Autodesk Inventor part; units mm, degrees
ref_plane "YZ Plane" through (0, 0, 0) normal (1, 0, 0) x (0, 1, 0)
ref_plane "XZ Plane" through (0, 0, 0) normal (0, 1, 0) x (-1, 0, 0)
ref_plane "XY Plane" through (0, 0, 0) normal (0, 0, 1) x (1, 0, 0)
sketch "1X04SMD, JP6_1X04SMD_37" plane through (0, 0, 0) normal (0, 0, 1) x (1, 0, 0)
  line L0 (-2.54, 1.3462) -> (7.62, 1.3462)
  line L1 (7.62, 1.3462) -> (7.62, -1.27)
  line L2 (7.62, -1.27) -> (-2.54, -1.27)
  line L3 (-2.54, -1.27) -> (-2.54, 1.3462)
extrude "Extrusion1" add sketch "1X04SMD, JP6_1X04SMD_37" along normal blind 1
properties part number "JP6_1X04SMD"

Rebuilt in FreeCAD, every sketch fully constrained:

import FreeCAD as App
import Part
import Sketcher
from FreeCAD import Vector
Q = App.Units.Quantity

doc = App.newDocument("Part")
params = doc.addObject("Spreadsheet::Sheet", "Params")
for row, (alias, value) in enumerate([
    ("sketch1_width", "0.4 in"),
    ("sketch1_height", "0.103 in"),
    ("pad1_length", "1 mm"),
], start=1):
    params.set(f"A{row}", alias)
    params.set(f"B{row}", "=" + value)
    params.setAlias(f"B{row}", alias)

body = doc.addObject("PartDesign::Body", "Body")

sketch1 = body.newObject("Sketcher::SketchObject", "Sketch")
sketch1.AttachmentSupport = (doc.getObject("XY_Plane"), [""])
sketch1.MapMode = "FlatFace"
sketch1.addGeometry(Part.LineSegment(Vector(7.62, 1.3462, 0), Vector(-2.54, 1.3462, 0)), False)
sketch1.addGeometry(Part.LineSegment(Vector(-2.54, 1.3462, 0), Vector(-2.54, -1.27, 0)), False)
sketch1.addGeometry(Part.LineSegment(Vector(-2.54, -1.27, 0), Vector(7.62, -1.27, 0)), False)
sketch1.addGeometry(Part.LineSegment(Vector(7.62, -1.27, 0), Vector(7.62, 1.3462, 0)), False)
sketch1.addConstraint(Sketcher.Constraint("Coincident", 0, 2, 1, 1))
sketch1.addConstraint(Sketcher.Constraint("Coincident", 1, 2, 2, 1))
sketch1.addConstraint(Sketcher.Constraint("Coincident", 2, 2, 3, 1))
sketch1.addConstraint(Sketcher.Constraint("Coincident", 3, 2, 0, 1))
sketch1.addConstraint(Sketcher.Constraint("Horizontal", 0))
sketch1.addConstraint(Sketcher.Constraint("Vertical", 1))
sketch1.addConstraint(Sketcher.Constraint("Horizontal", 2))
sketch1.addConstraint(Sketcher.Constraint("Vertical", 3))
sketch1.addConstraint(Sketcher.Constraint("DistanceX", 0, 2, 0, 1, Q("0.4 in")))
sketch1.addConstraint(Sketcher.Constraint("DistanceX", 0, 2, -1, 1, Q("0.1 in")))
sketch1.addConstraint(Sketcher.Constraint("DistanceY", 1, 2, 1, 1, Q("0.103 in")))
sketch1.addConstraint(Sketcher.Constraint("DistanceY", 1, 2, -1, 1, Q("0.05 in")))
sketch1.setExpression("Constraints[8]", "Params.sketch1_width")
sketch1.setExpression("Constraints[10]", "Params.sketch1_height")
pad1 = body.newObject("PartDesign::Pad", "Pad")
pad1.Profile = sketch1
pad1.setExpression("Length", "Params.pad1_length")

doc.recompute()
